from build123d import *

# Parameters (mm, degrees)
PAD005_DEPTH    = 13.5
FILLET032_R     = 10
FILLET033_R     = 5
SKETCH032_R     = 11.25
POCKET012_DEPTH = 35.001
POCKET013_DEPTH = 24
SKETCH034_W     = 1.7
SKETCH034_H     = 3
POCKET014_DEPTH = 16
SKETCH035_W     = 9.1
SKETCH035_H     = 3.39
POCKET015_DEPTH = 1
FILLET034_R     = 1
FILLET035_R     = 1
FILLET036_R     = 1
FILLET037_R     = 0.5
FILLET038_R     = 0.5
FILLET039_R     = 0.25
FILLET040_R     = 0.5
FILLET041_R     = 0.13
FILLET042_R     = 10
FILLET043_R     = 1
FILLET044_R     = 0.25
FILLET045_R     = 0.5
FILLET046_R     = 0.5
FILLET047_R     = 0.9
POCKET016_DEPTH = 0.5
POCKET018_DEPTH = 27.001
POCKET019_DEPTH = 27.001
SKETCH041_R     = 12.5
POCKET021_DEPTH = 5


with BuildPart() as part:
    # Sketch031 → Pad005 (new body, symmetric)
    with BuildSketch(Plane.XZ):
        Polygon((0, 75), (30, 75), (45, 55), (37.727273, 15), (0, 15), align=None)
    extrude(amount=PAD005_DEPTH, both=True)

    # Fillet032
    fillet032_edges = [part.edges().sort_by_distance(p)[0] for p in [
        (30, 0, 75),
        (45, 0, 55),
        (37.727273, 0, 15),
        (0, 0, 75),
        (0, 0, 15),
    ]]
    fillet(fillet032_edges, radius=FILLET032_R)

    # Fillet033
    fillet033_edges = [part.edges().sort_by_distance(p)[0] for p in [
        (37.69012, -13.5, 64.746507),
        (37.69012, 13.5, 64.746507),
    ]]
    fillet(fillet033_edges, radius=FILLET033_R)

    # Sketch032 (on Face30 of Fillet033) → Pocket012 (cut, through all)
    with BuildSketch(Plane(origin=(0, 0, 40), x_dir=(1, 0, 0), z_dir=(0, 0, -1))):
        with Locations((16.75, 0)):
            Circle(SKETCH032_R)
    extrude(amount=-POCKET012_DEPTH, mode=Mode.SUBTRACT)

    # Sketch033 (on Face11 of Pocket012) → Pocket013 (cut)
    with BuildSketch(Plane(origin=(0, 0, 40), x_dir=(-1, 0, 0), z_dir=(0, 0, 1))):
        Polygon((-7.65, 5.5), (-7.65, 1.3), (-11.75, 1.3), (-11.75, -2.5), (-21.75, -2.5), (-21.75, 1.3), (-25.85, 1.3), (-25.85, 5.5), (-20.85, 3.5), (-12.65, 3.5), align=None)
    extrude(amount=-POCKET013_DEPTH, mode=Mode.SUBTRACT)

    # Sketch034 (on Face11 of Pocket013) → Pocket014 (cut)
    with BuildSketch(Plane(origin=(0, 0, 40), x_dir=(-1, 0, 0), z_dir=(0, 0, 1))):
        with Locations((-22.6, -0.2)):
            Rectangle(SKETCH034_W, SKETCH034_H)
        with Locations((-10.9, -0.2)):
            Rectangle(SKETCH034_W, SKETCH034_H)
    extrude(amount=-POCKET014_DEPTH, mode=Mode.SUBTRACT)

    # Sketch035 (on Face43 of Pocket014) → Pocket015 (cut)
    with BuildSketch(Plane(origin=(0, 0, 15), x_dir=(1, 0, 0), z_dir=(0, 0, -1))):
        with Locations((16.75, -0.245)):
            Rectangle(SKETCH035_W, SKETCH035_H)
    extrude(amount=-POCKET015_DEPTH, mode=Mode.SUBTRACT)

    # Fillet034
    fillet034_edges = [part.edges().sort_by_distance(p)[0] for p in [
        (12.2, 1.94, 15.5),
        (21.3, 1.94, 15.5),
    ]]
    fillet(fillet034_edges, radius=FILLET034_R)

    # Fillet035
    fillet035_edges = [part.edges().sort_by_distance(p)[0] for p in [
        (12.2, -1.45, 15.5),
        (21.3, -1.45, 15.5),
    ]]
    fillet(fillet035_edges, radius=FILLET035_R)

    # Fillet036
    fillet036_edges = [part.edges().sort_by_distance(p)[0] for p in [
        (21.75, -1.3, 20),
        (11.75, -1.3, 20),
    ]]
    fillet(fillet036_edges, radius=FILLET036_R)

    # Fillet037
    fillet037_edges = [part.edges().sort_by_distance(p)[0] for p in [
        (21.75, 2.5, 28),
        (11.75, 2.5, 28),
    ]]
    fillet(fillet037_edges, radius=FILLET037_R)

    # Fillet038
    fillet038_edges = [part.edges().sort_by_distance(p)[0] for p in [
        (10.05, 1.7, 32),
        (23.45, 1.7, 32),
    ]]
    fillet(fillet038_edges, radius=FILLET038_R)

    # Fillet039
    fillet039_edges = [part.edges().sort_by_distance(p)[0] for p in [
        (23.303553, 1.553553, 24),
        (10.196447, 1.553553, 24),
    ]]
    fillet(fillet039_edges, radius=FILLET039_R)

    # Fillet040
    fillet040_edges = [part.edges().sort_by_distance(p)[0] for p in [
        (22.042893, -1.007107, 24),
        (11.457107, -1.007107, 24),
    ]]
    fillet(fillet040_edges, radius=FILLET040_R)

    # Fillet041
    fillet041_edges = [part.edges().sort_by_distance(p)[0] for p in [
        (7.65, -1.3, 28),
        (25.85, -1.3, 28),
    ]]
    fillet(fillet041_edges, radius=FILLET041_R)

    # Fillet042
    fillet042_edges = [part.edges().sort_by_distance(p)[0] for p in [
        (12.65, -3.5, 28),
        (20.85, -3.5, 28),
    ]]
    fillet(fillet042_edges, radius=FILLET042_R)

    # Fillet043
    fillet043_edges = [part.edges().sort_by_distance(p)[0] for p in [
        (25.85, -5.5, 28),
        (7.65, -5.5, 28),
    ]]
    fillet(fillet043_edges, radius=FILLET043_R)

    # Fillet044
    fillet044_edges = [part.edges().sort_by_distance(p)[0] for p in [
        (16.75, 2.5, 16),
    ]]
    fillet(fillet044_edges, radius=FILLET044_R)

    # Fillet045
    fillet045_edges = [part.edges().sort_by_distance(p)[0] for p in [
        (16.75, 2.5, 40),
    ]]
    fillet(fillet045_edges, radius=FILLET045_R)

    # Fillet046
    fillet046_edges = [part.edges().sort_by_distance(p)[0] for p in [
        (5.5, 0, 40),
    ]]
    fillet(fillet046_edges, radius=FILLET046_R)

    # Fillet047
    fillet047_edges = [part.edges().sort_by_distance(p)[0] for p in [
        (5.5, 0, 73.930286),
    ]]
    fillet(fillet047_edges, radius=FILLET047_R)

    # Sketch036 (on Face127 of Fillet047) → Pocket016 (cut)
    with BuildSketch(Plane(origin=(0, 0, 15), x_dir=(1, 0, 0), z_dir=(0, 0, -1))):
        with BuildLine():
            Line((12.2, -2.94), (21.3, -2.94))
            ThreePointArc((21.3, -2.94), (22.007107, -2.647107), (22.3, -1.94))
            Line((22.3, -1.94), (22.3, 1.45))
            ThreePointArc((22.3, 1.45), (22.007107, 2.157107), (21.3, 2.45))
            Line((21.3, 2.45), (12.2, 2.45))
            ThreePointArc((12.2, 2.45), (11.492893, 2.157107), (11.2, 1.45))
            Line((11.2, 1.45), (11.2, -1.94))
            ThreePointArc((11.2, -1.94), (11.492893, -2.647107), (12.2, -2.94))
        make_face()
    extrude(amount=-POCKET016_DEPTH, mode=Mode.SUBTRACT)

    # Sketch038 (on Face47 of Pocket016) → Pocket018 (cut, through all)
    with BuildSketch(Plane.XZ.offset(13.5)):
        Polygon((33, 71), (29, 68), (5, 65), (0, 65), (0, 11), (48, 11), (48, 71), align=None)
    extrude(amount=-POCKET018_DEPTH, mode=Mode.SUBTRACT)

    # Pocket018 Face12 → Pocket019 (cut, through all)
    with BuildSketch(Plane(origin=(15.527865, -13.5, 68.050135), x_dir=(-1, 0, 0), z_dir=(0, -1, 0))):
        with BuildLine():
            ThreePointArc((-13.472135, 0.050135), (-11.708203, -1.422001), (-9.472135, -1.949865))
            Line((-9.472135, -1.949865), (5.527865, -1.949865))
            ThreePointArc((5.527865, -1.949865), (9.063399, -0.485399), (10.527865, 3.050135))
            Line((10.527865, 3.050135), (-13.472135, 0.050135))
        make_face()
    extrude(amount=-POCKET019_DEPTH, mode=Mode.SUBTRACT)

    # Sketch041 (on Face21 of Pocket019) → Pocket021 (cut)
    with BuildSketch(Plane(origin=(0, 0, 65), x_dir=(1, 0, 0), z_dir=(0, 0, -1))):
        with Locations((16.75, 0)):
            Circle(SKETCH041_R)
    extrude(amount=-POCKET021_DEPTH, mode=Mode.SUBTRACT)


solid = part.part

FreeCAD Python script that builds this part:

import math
import FreeCAD as App
import Part
import Sketcher

V = App.Vector
Q = App.Units.Quantity


def edges_at(feature, points):
    """Names of the edges that pass closest to the given points."""
    edges = feature.Shape.Edges
    near = lambda p: min(range(len(edges)), key=lambda i: edges[i].distToShape(Part.Vertex(*p))[0])
    return sorted({f"Edge{near(p) + 1}" for p in points})


def add_polygon(sketch, points):
    """Adds a closed chain of lines whose ends are joined by coincident constraints."""
    first, n = sketch.GeometryCount, len(points)
    for a, b in zip(points, points[1:] + points[:1]):
        sketch.addGeometry(Part.LineSegment(App.Vector(*a, 0), App.Vector(*b, 0)), False)
    for i in range(n):
        sketch.addConstraint(Sketcher.Constraint("Coincident", first + i, 2, first + (i + 1) % n, 1))

doc = App.newDocument("Part")
params = doc.addObject("Spreadsheet::Sheet", "Params")
for row, (alias, value) in enumerate([
    ("sketch1_width", "30 mm"),
    ("sketch1_height", "60 mm"),
    ("sketch1_length", "25 mm"),
    ("pad1_length", "27 mm"),
    ("fillet_radius", "10 mm"),
    ("fillet2_radius", "5 mm"),
    ("sketch2_diameter", "22.5 mm"),
    ("sketch3_width", "10 mm"),
    ("sketch3_width2", "8.2 mm"),
    ("sketch3_width3", "4.1 mm"),
    ("sketch3_height", "4.2 mm"),
    ("sketch3_height2", "3.8 mm"),
    ("pocket2_length", "24 mm"),
    ("sketch4_height", "3 mm"),
    ("sketch4_width", "1.7 mm"),
    ("pocket3_length", "16 mm"),
    ("sketch5_width", "9.1 mm"),
    ("sketch5_height", "3.39 mm"),
    ("pocket4_length", "1 mm"),
    ("fillet3_radius", "1 mm"),
    ("fillet4_radius", "1 mm"),
    ("fillet5_radius", "1 mm"),
    ("fillet6_radius", "0.5 mm"),
    ("fillet7_radius", "0.5 mm"),
    ("fillet8_radius", "0.25 mm"),
    ("fillet9_radius", "0.5 mm"),
    ("fillet10_radius", "0.13 mm"),
    ("fillet11_radius", "10 mm"),
    ("fillet12_radius", "1 mm"),
    ("fillet13_radius", "0.25 mm"),
    ("fillet14_radius", "0.5 mm"),
    ("fillet15_radius", "0.5 mm"),
    ("fillet16_radius", "0.9 mm"),
    ("sketch6_radius", "0.999999 mm"),
    ("sketch6_width", "9.1 mm"),
    ("sketch6_height", "3.39 mm"),
    ("pocket5_length", "0.5 mm"),
    ("sketch7_width", "5 mm"),
    ("sketch7_width2", "48 mm"),
    ("sketch7_width3", "15 mm"),
    ("sketch7_height", "54 mm"),
    ("sketch7_height2", "60 mm"),
    ("sketch8_radius", "5 mm"),
    ("sketch8_width", "15 mm"),
    ("sketch9_diameter", "25 mm"),
    ("pocket8_length", "5 mm"),
], start=1):
    params.set(f"A{row}", alias)
    params.set(f"B{row}", "=" + value)
    params.setAlias(f"B{row}", alias)

body = doc.addObject("PartDesign::Body", "Body")

# Sketch on XZ plane
sketch1 = body.newObject("Sketcher::SketchObject", "Sketch")
sketch1.AttachmentSupport = (doc.getObject("XZ_Plane"), [""])
sketch1.MapMode = "FlatFace"
add_polygon(sketch1, [(30, 75), (0, 75), (0, 15), (38, 15), (45, 55)])  # lines 0-4
sketch1.addConstraint([
    Sketcher.Constraint("Horizontal", 0),
    Sketcher.Constraint("Vertical", 1),
    Sketcher.Constraint("Horizontal", 2),
    Sketcher.Constraint("PointOnObject", 0, 2, -2),
    Sketcher.Constraint("DistanceX", 0, 2, 0, 1, Q("30 mm")),
    Sketcher.Constraint("DistanceY", 1, 2, 1, 1, Q("60 mm")),
    Sketcher.Constraint("Distance", 4, Q("25 mm")),
    Sketcher.Constraint("DistanceY", -1, 1, 0, 2, Q("75 mm")),
    Sketcher.Constraint("DistanceX", -1, 1, 3, 2, Q("45 mm")),
    Sketcher.Constraint("Distance", 3, Q("40.655781 mm")),
])
sketch1.setExpression("Constraints[9]", "Params.sketch1_width")
sketch1.setExpression("Constraints[10]", "Params.sketch1_height")
sketch1.setExpression("Constraints[11]", "Params.sketch1_length")
pad1 = body.newObject("PartDesign::Pad", "Pad")
pad1.Profile = sketch1
pad1.setExpression("Length", "Params.pad1_length")
pad1.Midplane = True
doc.recompute()

fillet = body.newObject("PartDesign::Fillet", "Fillet")
fillet.Base = (pad1, edges_at(pad1, [
    (30, 0, 75),
    (45, 0, 55),
    (37.727, 0, 15),
    (0, 0, 75),
    (0, 0, 15),
]))
fillet.setExpression("Radius", "Params.fillet_radius")
doc.recompute()

fillet2 = body.newObject("PartDesign::Fillet", "Fillet001")
fillet2.Base = (fillet, edges_at(fillet, [(37.69, -13.5, 64.747), (37.69, 13.5, 64.747)]))
fillet2.setExpression("Radius", "Params.fillet2_radius")

# Sketch on XY plane
sketch2 = body.newObject("Sketcher::SketchObject", "Sketch001")
sketch2.AttachmentSupport = (doc.getObject("XY_Plane"), [""])
sketch2.MapMode = "FlatFace"
sketch2.AttachmentOffset = App.Placement(V(0, 0, 40), App.Rotation())
sketch2.addGeometry(Part.Circle(V(17, 0, 0), V(0, 0, 1), 11), False)
sketch2.addConstraint([
    Sketcher.Constraint("PointOnObject", 0, 3, -1),
    Sketcher.Constraint("Diameter", 0, Q("22.5 mm")),
    Sketcher.Constraint("DistanceX", -1, 1, 0, 3, Q("16.75 mm")),
])
sketch2.setExpression("Constraints[1]", "Params.sketch2_diameter")
pocket1 = body.newObject("PartDesign::Pocket", "Pocket")
pocket1.Profile = sketch2
pocket1.Type = "ThroughAll"
pocket1.Reversed = True

# Sketch on XY plane
sketch3 = body.newObject("Sketcher::SketchObject", "Sketch002")
sketch3.AttachmentSupport = (doc.getObject("XY_Plane"), [""])
sketch3.MapMode = "FlatFace"
sketch3.AttachmentOffset = App.Placement(V(0, 0, 40), App.Rotation())
add_polygon(sketch3, [(7.7, -1.3), (7.7, -5.5), (12.7, -3.5), (20.9, -3.5), (25.9, -5.5), (25.9, -1.3), (21.8, -1.3), (21.8, 2.5), (11.8, 2.5), (11.8, -1.3)])  # lines 0-9
sketch3.addConstraint([
    Sketcher.Constraint("Vertical", 0),
    Sketcher.Constraint("Horizontal", 2),
    Sketcher.Constraint("Vertical", 4),
    Sketcher.Constraint("Horizontal", 5),
    Sketcher.Constraint("Vertical", 6),
    Sketcher.Constraint("Horizontal", 7),
    Sketcher.Constraint("Vertical", 8),
    Sketcher.Constraint("Horizontal", 9),
    Sketcher.Constraint("Horizontal", 0, 2, 3, 2),
    Sketcher.Constraint("Horizontal", 5, 2, 8, 2),
    Sketcher.Constraint("Equal", 5, 9),
    Sketcher.Constraint("Equal", 1, 3),
    Sketcher.Constraint("DistanceX", 7, 2, 7, 1, Q("10 mm")),
    Sketcher.Constraint("DistanceX", 2, 1, 2, 2, Q("8.2 mm")),
    Sketcher.Constraint("DistanceX", 5, 2, 5, 1, Q("4.1 mm")),
    Sketcher.Constraint("DistanceY", 0, 2, 0, 1, Q("4.2 mm")),
    Sketcher.Constraint("DistanceY", 6, 1, 6, 2, Q("3.8 mm")),
    Sketcher.Constraint("DistanceY", 0, 2, 1, 2, Q("2 mm")),
    Sketcher.Constraint("DistanceY", 0, 2, -1, 1, Q("5.5 mm")),
    Sketcher.Constraint("DistanceX", -1, 1, 0, 2, Q("7.65 mm")),
])
sketch3.setExpression("Constraints[22]", "Params.sketch3_width")
sketch3.setExpression("Constraints[23]", "Params.sketch3_width2")
sketch3.setExpression("Constraints[24]", "Params.sketch3_width3")
sketch3.setExpression("Constraints[25]", "Params.sketch3_height")
sketch3.setExpression("Constraints[26]", "Params.sketch3_height2")
pocket2 = body.newObject("PartDesign::Pocket", "Pocket001")
pocket2.Profile = sketch3
pocket2.setExpression("Length", "Params.pocket2_length")

# Sketch on XY plane
sketch4 = body.newObject("Sketcher::SketchObject", "Sketch003")
sketch4.AttachmentSupport = (doc.getObject("XY_Plane"), [""])
sketch4.MapMode = "FlatFace"
sketch4.AttachmentOffset = App.Placement(V(0, 0, 40), App.Rotation())
add_polygon(sketch4, [(23.4, -1.3), (23.4, 1.7), (21.8, 1.7), (21.8, -1.3)])  # lines 0-3
add_polygon(sketch4, [(11.8, -1.3), (11.8, 1.7), (10.1, 1.7), (10.1, -1.3)])  # lines 4-7
sketch4.addConstraint([
    Sketcher.Constraint("Vertical", 0),
    Sketcher.Constraint("Horizontal", 1),
    Sketcher.Constraint("Vertical", 2),
    Sketcher.Constraint("Horizontal", 3),
    Sketcher.Constraint("Vertical", 4),
    Sketcher.Constraint("Horizontal", 5),
    Sketcher.Constraint("Vertical", 6),
    Sketcher.Constraint("Horizontal", 7),
    Sketcher.Constraint("Horizontal", 1, 2, 4, 2),
    Sketcher.Constraint("Horizontal", 3, 2, 6, 2),
    Sketcher.Constraint("Equal", 3, 5),
    Sketcher.Constraint("DistanceY", 0, 1, 0, 2, Q("3 mm")),
    Sketcher.Constraint("DistanceX", 1, 2, 1, 1, Q("1.7 mm")),
    Sketcher.Constraint("DistanceX", 4, 2, 1, 2, Q("10 mm")),
    Sketcher.Constraint("DistanceY", -1, 1, 0, 2, Q("1.7 mm")),
    Sketcher.Constraint("DistanceX", -1, 1, 0, 2, Q("23.45 mm")),
])
sketch4.setExpression("Constraints[19]", "Params.sketch4_height")
sketch4.setExpression("Constraints[20]", "Params.sketch4_width")
pocket3 = body.newObject("PartDesign::Pocket", "Pocket002")
pocket3.Profile = sketch4
pocket3.setExpression("Length", "Params.pocket3_length")

# Sketch on XY plane
sketch5 = body.newObject("Sketcher::SketchObject", "Sketch004")
sketch5.AttachmentSupport = (doc.getObject("XY_Plane"), [""])
sketch5.MapMode = "FlatFace"
sketch5.AttachmentOffset = App.Placement(V(0, 0, 15), App.Rotation())
add_polygon(sketch5, [(12.2, -1.4), (12.2, 1.9), (21.3, 1.9), (21.3, -1.4)])  # lines 0-3
sketch5.addConstraint([
    Sketcher.Constraint("Vertical", 0),
    Sketcher.Constraint("Horizontal", 1),
    Sketcher.Constraint("Vertical", 2),
    Sketcher.Constraint("Horizontal", 3),
    Sketcher.Constraint("DistanceX", 1, 1, 1, 2, Q("9.1 mm")),
    Sketcher.Constraint("DistanceY", 0, 1, 0, 2, Q("3.39 mm")),
    Sketcher.Constraint("DistanceX", -1, 1, 0, 2, Q("12.2 mm")),
    Sketcher.Constraint("DistanceY", -1, 1, 0, 2, Q("1.94 mm")),
])
sketch5.setExpression("Constraints[8]", "Params.sketch5_width")
sketch5.setExpression("Constraints[9]", "Params.sketch5_height")
pocket4 = body.newObject("PartDesign::Pocket", "Pocket003")
pocket4.Profile = sketch5
pocket4.setExpression("Length", "Params.pocket4_length")
pocket4.Reversed = True
doc.recompute()

fillet3 = body.newObject("PartDesign::Fillet", "Fillet002")
fillet3.Base = (pocket4, edges_at(pocket4, [(12.2, 1.94, 15.5), (21.3, 1.94, 15.5)]))
fillet3.setExpression("Radius", "Params.fillet3_radius")
doc.recompute()

fillet4 = body.newObject("PartDesign::Fillet", "Fillet003")
fillet4.Base = (fillet3, edges_at(fillet3, [(12.2, -1.45, 15.5), (21.3, -1.45, 15.5)]))
fillet4.setExpression("Radius", "Params.fillet4_radius")
doc.recompute()

fillet5 = body.newObject("PartDesign::Fillet", "Fillet004")
fillet5.Base = (fillet4, edges_at(fillet4, [(21.75, -1.3, 20), (11.75, -1.3, 20)]))
fillet5.setExpression("Radius", "Params.fillet5_radius")
doc.recompute()

fillet6 = body.newObject("PartDesign::Fillet", "Fillet005")
fillet6.Base = (fillet5, edges_at(fillet5, [(21.75, 2.5, 28), (11.75, 2.5, 28)]))
fillet6.setExpression("Radius", "Params.fillet6_radius")
doc.recompute()

fillet7 = body.newObject("PartDesign::Fillet", "Fillet006")
fillet7.Base = (fillet6, edges_at(fillet6, [(10.05, 1.7, 32), (23.45, 1.7, 32)]))
fillet7.setExpression("Radius", "Params.fillet7_radius")
doc.recompute()

fillet8 = body.newObject("PartDesign::Fillet", "Fillet007")
fillet8.Base = (fillet7, edges_at(fillet7, [(23.304, 1.554, 24), (10.196, 1.554, 24)]))
fillet8.setExpression("Radius", "Params.fillet8_radius")
doc.recompute()

fillet9 = body.newObject("PartDesign::Fillet", "Fillet008")
fillet9.Base = (fillet8, edges_at(fillet8, [(22.043, -1.007, 24), (11.457, -1.007, 24)]))
fillet9.setExpression("Radius", "Params.fillet9_radius")
doc.recompute()

fillet10 = body.newObject("PartDesign::Fillet", "Fillet009")
fillet10.Base = (fillet9, edges_at(fillet9, [(7.65, -1.3, 28), (25.85, -1.3, 28)]))
fillet10.setExpression("Radius", "Params.fillet10_radius")
doc.recompute()

fillet11 = body.newObject("PartDesign::Fillet", "Fillet010")
fillet11.Base = (fillet10, edges_at(fillet10, [(12.65, -3.5, 28), (20.85, -3.5, 28)]))
fillet11.setExpression("Radius", "Params.fillet11_radius")
doc.recompute()

fillet12 = body.newObject("PartDesign::Fillet", "Fillet011")
fillet12.Base = (fillet11, edges_at(fillet11, [(25.85, -5.5, 28), (7.65, -5.5, 28)]))
fillet12.setExpression("Radius", "Params.fillet12_radius")
doc.recompute()

fillet13 = body.newObject("PartDesign::Fillet", "Fillet012")
fillet13.Base = (fillet12, edges_at(fillet12, [(16.75, 2.5, 16)]))
fillet13.setExpression("Radius", "Params.fillet13_radius")
doc.recompute()

fillet14 = body.newObject("PartDesign::Fillet", "Fillet013")
fillet14.Base = (fillet13, edges_at(fillet13, [(16.75, 2.5, 40)]))
fillet14.setExpression("Radius", "Params.fillet14_radius")
doc.recompute()

fillet15 = body.newObject("PartDesign::Fillet", "Fillet014")
fillet15.Base = (fillet14, edges_at(fillet14, [(5.5, 0, 40)]))
fillet15.setExpression("Radius", "Params.fillet15_radius")
doc.recompute()

fillet16 = body.newObject("PartDesign::Fillet", "Fillet015")
fillet16.Base = (fillet15, edges_at(fillet15, [(5.5, 0, 73.93)]))
fillet16.setExpression("Radius", "Params.fillet16_radius")

# Sketch on XY plane
sketch6 = body.newObject("Sketcher::SketchObject", "Sketch005")
sketch6.AttachmentSupport = (doc.getObject("XY_Plane"), [""])
sketch6.MapMode = "FlatFace"
sketch6.AttachmentOffset = App.Placement(V(0, 0, 15), App.Rotation())
sketch6.addGeometry([
    Part.LineSegment(V(12.2, 2.9, 0), V(21.3, 2.9, 0)),  # 0
    Part.ArcOfCircle(Part.Circle(V(21.3, 1.9, 0), V(0, 0, 1), 1), math.radians(0), math.radians(90)),  # 1
    Part.LineSegment(V(22.3, 1.9, 0), V(22.3, -1.4, 0)),  # 2
    Part.ArcOfCircle(Part.Circle(V(21.3, -1.5, 0), V(0, 0, 1), 1), math.radians(-90), math.radians(0)),  # 3
    Part.LineSegment(V(21.3, -2.5, 0), V(12.2, -2.5, 0)),  # 4
    Part.ArcOfCircle(Part.Circle(V(12.2, -1.5, 0), V(0, 0, 1), 1), math.radians(180), math.radians(270)),  # 5
    Part.LineSegment(V(11.2, -1.4, 0), V(11.2, 1.9, 0)),  # 6
    Part.ArcOfCircle(Part.Circle(V(12.2, 1.9, 0), V(0, 0, 1), 1), math.radians(90), math.radians(180)),  # 7
], False)
sketch6.addConstraint([
    Sketcher.Constraint("Tangent", 0, 2, 1, 2),
    Sketcher.Constraint("Tangent", 1, 1, 2, 1),
    Sketcher.Constraint("Tangent", 2, 2, 3, 2),
    Sketcher.Constraint("Tangent", 3, 1, 4, 1),
    Sketcher.Constraint("Tangent", 4, 2, 5, 2),
    Sketcher.Constraint("Tangent", 5, 1, 6, 1),
    Sketcher.Constraint("Tangent", 6, 2, 7, 2),
    Sketcher.Constraint("Tangent", 7, 1, 0, 1),
    Sketcher.Constraint("Horizontal", 0),
    Sketcher.Constraint("Vertical", 2),
    Sketcher.Constraint("Horizontal", 4),
    Sketcher.Constraint("Vertical", 6),
    Sketcher.Constraint("Equal", 1, 3),
    Sketcher.Constraint("Equal", 3, 5),
    Sketcher.Constraint("Equal", 5, 7),
    Sketcher.Constraint("Radius", 1, Q("0.999999 mm")),
    Sketcher.Constraint("DistanceX", 0, 1, 0, 2, Q("9.1 mm")),
    Sketcher.Constraint("DistanceY", 2, 2, 2, 1, Q("3.39 mm")),
    Sketcher.Constraint("DistanceX", -1, 1, 1, 3, Q("21.300001 mm")),
    Sketcher.Constraint("DistanceY", -1, 1, 1, 3, Q("1.940001 mm")),
])
sketch6.setExpression("Constraints[15]", "Params.sketch6_radius")
sketch6.setExpression("Constraints[16]", "Params.sketch6_width")
sketch6.setExpression("Constraints[17]", "Params.sketch6_height")
pocket5 = body.newObject("PartDesign::Pocket", "Pocket004")
pocket5.Profile = sketch6
pocket5.setExpression("Length", "Params.pocket5_length")
pocket5.Reversed = True

# Sketch on XZ plane
sketch7 = body.newObject("Sketcher::SketchObject", "Sketch006")
sketch7.AttachmentSupport = (doc.getObject("XZ_Plane"), [""])
sketch7.MapMode = "FlatFace"
sketch7.AttachmentOffset = App.Placement(V(0, 0, 13.5), App.Rotation())
add_polygon(sketch7, [(33, 71), (29, 68), (5, 65), (0, 65), (0, 11), (48, 11), (48, 71)])  # lines 0-6
sketch7.addConstraint([
    Sketcher.Constraint("Horizontal", 2),
    Sketcher.Constraint("Vertical", 3),
    Sketcher.Constraint("Horizontal", 4),
    Sketcher.Constraint("Vertical", 5),
    Sketcher.Constraint("Horizontal", 6),
    Sketcher.Constraint("PointOnObject", 2, 2, -2),
    Sketcher.Constraint("DistanceX", 2, 2, 2, 1, Q("5 mm")),
    Sketcher.Constraint("DistanceX", 4, 1, 4, 2, Q("48 mm")),
    Sketcher.Constraint("DistanceX", 6, 2, 6, 1, Q("15 mm")),
    Sketcher.Constraint("DistanceY", 3, 2, 3, 1, Q("54 mm")),
    Sketcher.Constraint("DistanceY", 5, 1, 5, 2, Q("60 mm")),
    Sketcher.Constraint("Distance", 0, Q("5 mm")),
    Sketcher.Constraint("DistanceX", -1, 1, 0, 2, Q("29 mm")),
    Sketcher.Constraint("DistanceY", -1, 1, 0, 2, Q("68 mm")),
])
sketch7.setExpression("Constraints[13]", "Params.sketch7_width")
sketch7.setExpression("Constraints[14]", "Params.sketch7_width2")
sketch7.setExpression("Constraints[15]", "Params.sketch7_width3")
sketch7.setExpression("Constraints[16]", "Params.sketch7_height")
sketch7.setExpression("Constraints[17]", "Params.sketch7_height2")
pocket6 = body.newObject("PartDesign::Pocket", "Pocket005")
pocket6.Profile = sketch7
pocket6.Type = "ThroughAll"

# Sketch on XZ plane
sketch8 = body.newObject("Sketcher::SketchObject", "Sketch007")
sketch8.AttachmentSupport = (doc.getObject("XZ_Plane"), [""])
sketch8.MapMode = "FlatFace"
sketch8.AttachmentOffset = App.Placement(V(0, 0, 13.5), App.Rotation())
sketch8.addGeometry([
    Part.ArcOfCircle(Part.Circle(V(25, 65, 0), V(0, 0, 1), 5), math.radians(37), math.radians(90)),
    Part.LineSegment(V(25, 70, 0), V(10, 70, 0)),
    Part.ArcOfCircle(Part.Circle(V(10, 65, 0), V(0, 0, 1), 5), math.radians(90), math.radians(180)),
    Part.LineSegment(V(5, 65, 0), V(29, 68, 0)),
], False)
sketch8.addConstraint([
    Sketcher.Constraint("Tangent", 0, 2, 1, 1),
    Sketcher.Constraint("Tangent", 1, 2, 2, 1),
    Sketcher.Constraint("Coincident", 2, 2, 3, 1),
    Sketcher.Constraint("Coincident", 3, 2, 0, 1),
    Sketcher.Constraint("Horizontal", 1),
    Sketcher.Constraint("Equal", 0, 2),
    Sketcher.Constraint("Horizontal", 0, 3, 2, 2),
    Sketcher.Constraint("Radius", 0, Q("5 mm")),
    Sketcher.Constraint("DistanceX", 1, 2, 1, 1, Q("15 mm")),
    Sketcher.Constraint("DistanceX", -1, 1, 0, 3, Q("25 mm")),
    Sketcher.Constraint("DistanceY", -1, 1, 0, 3, Q("65 mm")),
    Sketcher.Constraint("DistanceX", -1, 1, 3, 2, Q("29 mm")),
])
sketch8.setExpression("Constraints[7]", "Params.sketch8_radius")
sketch8.setExpression("Constraints[8]", "Params.sketch8_width")
pocket7 = body.newObject("PartDesign::Pocket", "Pocket006")
pocket7.Profile = sketch8
pocket7.Type = "ThroughAll"

# Sketch on XY plane
sketch9 = body.newObject("Sketcher::SketchObject", "Sketch008")
sketch9.AttachmentSupport = (doc.getObject("XY_Plane"), [""])
sketch9.MapMode = "FlatFace"
sketch9.AttachmentOffset = App.Placement(V(0, 0, 65), App.Rotation())
sketch9.addGeometry(Part.Circle(V(17, 0, 0), V(0, 0, 1), 12), False)
sketch9.addConstraint([
    Sketcher.Constraint("PointOnObject", 0, 3, -1),
    Sketcher.Constraint("Diameter", 0, Q("25 mm")),
    Sketcher.Constraint("DistanceX", -1, 1, 0, 3, Q("16.75 mm")),
])
sketch9.setExpression("Constraints[1]", "Params.sketch9_diameter")
pocket8 = body.newObject("PartDesign::Pocket", "Pocket007")
pocket8.Profile = sketch9
pocket8.setExpression("Length", "Params.pocket8_length")
pocket8.Reversed = True

doc.recompute()
